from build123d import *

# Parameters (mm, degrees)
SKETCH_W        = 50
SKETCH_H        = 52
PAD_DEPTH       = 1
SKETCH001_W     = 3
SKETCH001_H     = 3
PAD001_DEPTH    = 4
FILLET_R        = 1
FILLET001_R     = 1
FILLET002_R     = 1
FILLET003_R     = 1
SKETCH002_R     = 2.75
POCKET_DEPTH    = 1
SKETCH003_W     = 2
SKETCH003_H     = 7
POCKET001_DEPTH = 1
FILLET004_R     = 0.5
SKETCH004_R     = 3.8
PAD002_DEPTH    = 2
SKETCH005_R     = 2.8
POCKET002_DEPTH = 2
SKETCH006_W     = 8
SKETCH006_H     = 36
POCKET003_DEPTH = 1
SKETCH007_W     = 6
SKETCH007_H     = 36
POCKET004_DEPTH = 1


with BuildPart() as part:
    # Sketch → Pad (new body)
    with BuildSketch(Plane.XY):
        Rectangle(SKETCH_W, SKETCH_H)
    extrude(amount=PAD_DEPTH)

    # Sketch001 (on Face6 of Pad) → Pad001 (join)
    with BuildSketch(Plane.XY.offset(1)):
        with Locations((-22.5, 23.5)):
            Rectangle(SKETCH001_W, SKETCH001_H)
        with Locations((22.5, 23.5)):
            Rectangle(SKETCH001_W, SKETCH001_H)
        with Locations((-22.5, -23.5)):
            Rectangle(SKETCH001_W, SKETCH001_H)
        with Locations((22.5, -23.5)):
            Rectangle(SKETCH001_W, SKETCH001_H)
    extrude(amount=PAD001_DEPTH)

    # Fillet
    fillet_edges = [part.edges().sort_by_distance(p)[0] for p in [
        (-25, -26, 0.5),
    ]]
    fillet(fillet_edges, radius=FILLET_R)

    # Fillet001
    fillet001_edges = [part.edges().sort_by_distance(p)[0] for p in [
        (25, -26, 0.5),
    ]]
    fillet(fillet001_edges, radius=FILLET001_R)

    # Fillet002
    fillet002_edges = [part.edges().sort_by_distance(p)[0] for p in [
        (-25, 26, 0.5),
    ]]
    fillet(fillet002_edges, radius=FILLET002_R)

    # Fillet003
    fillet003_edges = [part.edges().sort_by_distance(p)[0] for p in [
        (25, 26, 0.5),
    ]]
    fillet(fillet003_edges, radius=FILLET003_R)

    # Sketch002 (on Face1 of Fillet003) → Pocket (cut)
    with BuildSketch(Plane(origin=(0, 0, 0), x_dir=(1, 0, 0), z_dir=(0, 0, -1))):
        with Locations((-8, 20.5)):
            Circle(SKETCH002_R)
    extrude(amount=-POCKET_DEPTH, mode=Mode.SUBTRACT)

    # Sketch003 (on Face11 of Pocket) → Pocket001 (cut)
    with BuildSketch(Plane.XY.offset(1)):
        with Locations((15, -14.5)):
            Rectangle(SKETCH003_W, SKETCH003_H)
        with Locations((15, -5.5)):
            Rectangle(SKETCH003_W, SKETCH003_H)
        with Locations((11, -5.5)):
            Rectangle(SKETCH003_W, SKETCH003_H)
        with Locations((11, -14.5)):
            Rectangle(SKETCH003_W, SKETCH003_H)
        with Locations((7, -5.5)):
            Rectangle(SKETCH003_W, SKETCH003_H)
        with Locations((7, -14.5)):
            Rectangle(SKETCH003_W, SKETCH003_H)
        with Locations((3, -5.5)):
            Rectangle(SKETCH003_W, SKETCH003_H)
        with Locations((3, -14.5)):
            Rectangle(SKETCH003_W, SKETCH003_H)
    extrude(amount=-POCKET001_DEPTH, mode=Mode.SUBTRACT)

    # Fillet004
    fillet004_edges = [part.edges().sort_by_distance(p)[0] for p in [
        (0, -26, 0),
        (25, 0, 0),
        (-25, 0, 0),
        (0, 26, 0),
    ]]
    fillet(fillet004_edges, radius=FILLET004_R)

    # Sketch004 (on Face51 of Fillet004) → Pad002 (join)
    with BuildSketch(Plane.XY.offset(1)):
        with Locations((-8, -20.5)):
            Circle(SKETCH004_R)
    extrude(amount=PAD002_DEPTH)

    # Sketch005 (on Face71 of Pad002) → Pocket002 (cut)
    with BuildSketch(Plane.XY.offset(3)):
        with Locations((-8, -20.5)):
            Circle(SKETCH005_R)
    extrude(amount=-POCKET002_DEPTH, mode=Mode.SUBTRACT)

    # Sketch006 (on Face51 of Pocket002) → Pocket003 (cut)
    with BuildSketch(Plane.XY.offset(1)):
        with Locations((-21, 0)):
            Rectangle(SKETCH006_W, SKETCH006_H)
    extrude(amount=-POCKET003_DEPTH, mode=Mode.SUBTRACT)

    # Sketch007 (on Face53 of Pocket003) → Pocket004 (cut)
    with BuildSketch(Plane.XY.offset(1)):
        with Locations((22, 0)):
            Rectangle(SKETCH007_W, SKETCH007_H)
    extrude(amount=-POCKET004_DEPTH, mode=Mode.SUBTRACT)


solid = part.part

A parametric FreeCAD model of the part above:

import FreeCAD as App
import Part
import Sketcher

V = App.Vector


def edges_at(feature, points):
    """Names of the edges that pass closest to the given points."""
    edges = feature.Shape.Edges
    near = lambda p: min(range(len(edges)), key=lambda i: edges[i].distToShape(Part.Vertex(*p))[0])
    return sorted({f"Edge{near(p) + 1}" for p in points})

doc = App.newDocument("Part")
params = doc.addObject("Spreadsheet::Sheet", "Params")
for row, (alias, value) in enumerate([
    ("sketch1_width", "50 mm"),
    ("sketch1_height", "52 mm"),
    ("pad1_length", "1 mm"),
    ("sketch2_width", "3 mm"),
    ("pad2_length", "4 mm"),
    ("fillet_radius", "1 mm"),
    ("fillet2_radius", "1 mm"),
    ("fillet3_radius", "1 mm"),
    ("fillet4_radius", "1 mm"),
    ("sketch3_diameter", "5.5 mm"),
    ("pocket1_length", "1 mm"),
    ("sketch4_width", "2 mm"),
    ("sketch4_height", "7 mm"),
    ("pocket2_length", "1 mm"),
    ("fillet5_radius", "0.5 mm"),
    ("sketch5_diameter", "7.6 mm"),
    ("pad3_length", "2 mm"),
    ("sketch6_diameter", "5.6 mm"),
    ("pocket3_length", "2 mm"),
    ("sketch7_width", "8 mm"),
    ("sketch7_height", "36 mm"),
    ("pocket4_length", "1 mm"),
    ("sketch8_width", "6 mm"),
    ("sketch8_height", "36 mm"),
    ("pocket5_length", "1 mm"),
], start=1):
    params.set(f"A{row}", alias)
    params.set(f"B{row}", "=" + value)
    params.setAlias(f"B{row}", alias)

body = doc.addObject("PartDesign::Body", "Body")

sketch1 = body.newObject("Sketcher::SketchObject", "Sketch")
sketch1.AttachmentSupport = (doc.getObject("XY_Plane"), [""])
sketch1.MapMode = "FlatFace"
sketch1.addGeometry([
    Part.LineSegment(V(-25, 26, 0), V(-25, -26, 0)),
    Part.LineSegment(V(-25, -26, 0), V(25, -26, 0)),
    Part.LineSegment(V(25, -26, 0), V(25, 26, 0)),
    Part.LineSegment(V(25, 26, 0), V(-25, 26, 0)),
], False)
sketch1.addConstraint([
    Sketcher.Constraint("Coincident", 0, 2, 1, 1),
    Sketcher.Constraint("Coincident", 1, 2, 2, 1),
    Sketcher.Constraint("Coincident", 2, 2, 3, 1),
    Sketcher.Constraint("Coincident", 3, 2, 0, 1),
    Sketcher.Constraint("Vertical", 0),
    Sketcher.Constraint("Horizontal", 1),
    Sketcher.Constraint("Vertical", 2),
    Sketcher.Constraint("Horizontal", 3),
    Sketcher.Constraint("Symmetric", 0, 2, 2, 2, -1, 1),
    Sketcher.Constraint("DistanceX", 1, 1, 1, 2, 50.0),
    Sketcher.Constraint("DistanceY", 0, 2, 0, 1, 52.0),
])
sketch1.setExpression("Constraints[9]", "Params.sketch1_width")
sketch1.setExpression("Constraints[10]", "Params.sketch1_height")
pad1 = body.newObject("PartDesign::Pad", "Pad")
pad1.Profile = sketch1
pad1.setExpression("Length", "Params.pad1_length")

sketch2 = body.newObject("Sketcher::SketchObject", "Sketch001")
sketch2.AttachmentSupport = (doc.getObject("XY_Plane"), [""])
sketch2.MapMode = "FlatFace"
sketch2.AttachmentOffset = App.Placement(V(0, 0, 1), App.Rotation())
sketch2.addGeometry([
    Part.LineSegment(V(-24, 25, 0), V(-24, 22, 0)),
    Part.LineSegment(V(-24, 22, 0), V(-21, 22, 0)),
    Part.LineSegment(V(-21, 22, 0), V(-21, 25, 0)),
    Part.LineSegment(V(-21, 25, 0), V(-24, 25, 0)),
    Part.LineSegment(V(21, 25, 0), V(21, 22, 0)),
    Part.LineSegment(V(21, 22, 0), V(24, 22, 0)),
    Part.LineSegment(V(24, 22, 0), V(24, 25, 0)),
    Part.LineSegment(V(24, 25, 0), V(21, 25, 0)),
    Part.LineSegment(V(-24, -22, 0), V(-24, -25, 0)),
    Part.LineSegment(V(-24, -25, 0), V(-21, -25, 0)),
    Part.LineSegment(V(-21, -25, 0), V(-21, -22, 0)),
    Part.LineSegment(V(-21, -22, 0), V(-24, -22, 0)),
    Part.LineSegment(V(21, -22, 0), V(21, -25, 0)),
    Part.LineSegment(V(21, -25, 0), V(24, -25, 0)),
    Part.LineSegment(V(24, -25, 0), V(24, -22, 0)),
    Part.LineSegment(V(24, -22, 0), V(21, -22, 0)),
], False)
sketch2.addConstraint([
    Sketcher.Constraint("Coincident", 0, 2, 1, 1),
    Sketcher.Constraint("Coincident", 1, 2, 2, 1),
    Sketcher.Constraint("Coincident", 2, 2, 3, 1),
    Sketcher.Constraint("Coincident", 3, 2, 0, 1),
    Sketcher.Constraint("Coincident", 4, 2, 5, 1),
    Sketcher.Constraint("Coincident", 5, 2, 6, 1),
    Sketcher.Constraint("Coincident", 6, 2, 7, 1),
    Sketcher.Constraint("Coincident", 7, 2, 4, 1),
    Sketcher.Constraint("Coincident", 8, 2, 9, 1),
    Sketcher.Constraint("Coincident", 9, 2, 10, 1),
    Sketcher.Constraint("Coincident", 10, 2, 11, 1),
    Sketcher.Constraint("Coincident", 11, 2, 8, 1),
    Sketcher.Constraint("Coincident", 12, 2, 13, 1),
    Sketcher.Constraint("Coincident", 13, 2, 14, 1),
    Sketcher.Constraint("Coincident", 14, 2, 15, 1),
    Sketcher.Constraint("Coincident", 15, 2, 12, 1),
    Sketcher.Constraint("Vertical", 0),
    Sketcher.Constraint("Horizontal", 1),
    Sketcher.Constraint("Vertical", 2),
    Sketcher.Constraint("Horizontal", 3),
    Sketcher.Constraint("Vertical", 4),
    Sketcher.Constraint("Horizontal", 5),
    Sketcher.Constraint("Vertical", 6),
    Sketcher.Constraint("Horizontal", 7),
    Sketcher.Constraint("Vertical", 8),
    Sketcher.Constraint("Horizontal", 9),
    Sketcher.Constraint("Vertical", 10),
    Sketcher.Constraint("Horizontal", 11),
    Sketcher.Constraint("Vertical", 12),
    Sketcher.Constraint("Horizontal", 13),
    Sketcher.Constraint("Vertical", 14),
    Sketcher.Constraint("Horizontal", 15),
    Sketcher.Constraint("Symmetric", 6, 2, 8, 2, -1, 1),
    Sketcher.Constraint("Symmetric", 4, 2, 10, 2, -1, 1),
    Sketcher.Constraint("Symmetric", 2, 2, 12, 2, -1, 1),
    Sketcher.Constraint("Symmetric", 0, 2, 14, 2, -1, 1),
    Sketcher.Constraint("Symmetric", 1, 2, 4, 2, -2),
    Sketcher.Constraint("Symmetric", 3, 2, 6, 2, -2),
    Sketcher.Constraint("Equal", 15, 0),
    Sketcher.Constraint("DistanceX", 1, 1, 1, 2, 3.0),
    Sketcher.Constraint("DistanceX", 0, 2, -1, 1, 24.0),
    Sketcher.Constraint("DistanceY", -1, 1, 0, 2, 22.0),
])
sketch2.setExpression("Constraints[39]", "Params.sketch2_width")
pad2 = body.newObject("PartDesign::Pad", "Pad001")
pad2.Profile = sketch2
pad2.setExpression("Length", "Params.pad2_length")
doc.recompute()

fillet = body.newObject("PartDesign::Fillet", "Fillet")
fillet.Base = (pad2, edges_at(pad2, [(-25, -26, 0.5)]))
fillet.setExpression("Radius", "Params.fillet_radius")
doc.recompute()

fillet2 = body.newObject("PartDesign::Fillet", "Fillet001")
fillet2.Base = (fillet, edges_at(fillet, [(25, -26, 0.5)]))
fillet2.setExpression("Radius", "Params.fillet2_radius")
doc.recompute()

fillet3 = body.newObject("PartDesign::Fillet", "Fillet002")
fillet3.Base = (fillet2, edges_at(fillet2, [(-25, 26, 0.5)]))
fillet3.setExpression("Radius", "Params.fillet3_radius")
doc.recompute()

fillet4 = body.newObject("PartDesign::Fillet", "Fillet003")
fillet4.Base = (fillet3, edges_at(fillet3, [(25, 26, 0.5)]))
fillet4.setExpression("Radius", "Params.fillet4_radius")

sketch3 = body.newObject("Sketcher::SketchObject", "Sketch002")
sketch3.AttachmentSupport = (doc.getObject("XY_Plane"), [""])
sketch3.MapMode = "FlatFace"
sketch3.addGeometry(Part.Circle(V(-8, -20.5, 0), V(0, 0, 1), 2.75), False)
sketch3.addConstraint([
    Sketcher.Constraint("Diameter", 0, 5.5),
    Sketcher.Constraint("DistanceX", 0, 3, -1, 1, 8.0),
    Sketcher.Constraint("DistanceY", 0, 3, -1, 1, 20.5),
])
sketch3.setExpression("Constraints[0]", "Params.sketch3_diameter")
pocket1 = body.newObject("PartDesign::Pocket", "Pocket")
pocket1.Profile = sketch3
pocket1.setExpression("Length", "Params.pocket1_length")
pocket1.Reversed = True

sketch4 = body.newObject("Sketcher::SketchObject", "Sketch003")
sketch4.AttachmentSupport = (doc.getObject("XY_Plane"), [""])
sketch4.MapMode = "FlatFace"
sketch4.AttachmentOffset = App.Placement(V(0, 0, 1), App.Rotation())
sketch4.addGeometry([
    Part.LineSegment(V(14, -11, 0), V(14, -18, 0)),
    Part.LineSegment(V(14, -18, 0), V(16, -18, 0)),
    Part.LineSegment(V(16, -18, 0), V(16, -11, 0)),
    Part.LineSegment(V(16, -11, 0), V(14, -11, 0)),
    Part.LineSegment(V(14, -2, 0), V(14, -9, 0)),
    Part.LineSegment(V(14, -9, 0), V(16, -9, 0)),
    Part.LineSegment(V(16, -9, 0), V(16, -2, 0)),
    Part.LineSegment(V(16, -2, 0), V(14, -2, 0)),
    Part.LineSegment(V(10, -2, 0), V(10, -9, 0)),
    Part.LineSegment(V(10, -9, 0), V(12, -9, 0)),
    Part.LineSegment(V(12, -9, 0), V(12, -2, 0)),
    Part.LineSegment(V(12, -2, 0), V(10, -2, 0)),
    Part.LineSegment(V(10, -11, 0), V(10, -18, 0)),
    Part.LineSegment(V(10, -18, 0), V(12, -18, 0)),
    Part.LineSegment(V(12, -18, 0), V(12, -11, 0)),
    Part.LineSegment(V(12, -11, 0), V(10, -11, 0)),
    Part.LineSegment(V(6, -2, 0), V(6, -9, 0)),
    Part.LineSegment(V(6, -9, 0), V(8, -9, 0)),
    Part.LineSegment(V(8, -9, 0), V(8, -2, 0)),
    Part.LineSegment(V(8, -2, 0), V(6, -2, 0)),
    Part.LineSegment(V(6, -11, 0), V(6, -18, 0)),
    Part.LineSegment(V(6, -18, 0), V(8, -18, 0)),
    Part.LineSegment(V(8, -18, 0), V(8, -11, 0)),
    Part.LineSegment(V(8, -11, 0), V(6, -11, 0)),
    Part.LineSegment(V(2, -2, 0), V(2, -9, 0)),
    Part.LineSegment(V(2, -9, 0), V(4, -9, 0)),
    Part.LineSegment(V(4, -9, 0), V(4, -2, 0)),
    Part.LineSegment(V(4, -2, 0), V(2, -2, 0)),
    Part.LineSegment(V(2, -11, 0), V(2, -18, 0)),
    Part.LineSegment(V(2, -18, 0), V(4, -18, 0)),
    Part.LineSegment(V(4, -18, 0), V(4, -11, 0)),
    Part.LineSegment(V(4, -11, 0), V(2, -11, 0)),
], False)
sketch4.addConstraint([
    Sketcher.Constraint("Coincident", 0, 2, 1, 1),
    Sketcher.Constraint("Coincident", 1, 2, 2, 1),
    Sketcher.Constraint("Coincident", 2, 2, 3, 1),
    Sketcher.Constraint("Coincident", 3, 2, 0, 1),
    Sketcher.Constraint("Coincident", 4, 2, 5, 1),
    Sketcher.Constraint("Coincident", 5, 2, 6, 1),
    Sketcher.Constraint("Coincident", 6, 2, 7, 1),
    Sketcher.Constraint("Coincident", 7, 2, 4, 1),
    Sketcher.Constraint("Coincident", 8, 2, 9, 1),
    Sketcher.Constraint("Coincident", 9, 2, 10, 1),
    Sketcher.Constraint("Coincident", 10, 2, 11, 1),
    Sketcher.Constraint("Coincident", 11, 2, 8, 1),
    Sketcher.Constraint("Coincident", 12, 2, 13, 1),
    Sketcher.Constraint("Coincident", 13, 2, 14, 1),
    Sketcher.Constraint("Coincident", 14, 2, 15, 1),
    Sketcher.Constraint("Coincident", 15, 2, 12, 1),
    Sketcher.Constraint("Coincident", 16, 2, 17, 1),
    Sketcher.Constraint("Coincident", 17, 2, 18, 1),
    Sketcher.Constraint("Coincident", 18, 2, 19, 1),
    Sketcher.Constraint("Coincident", 19, 2, 16, 1),
    Sketcher.Constraint("Coincident", 20, 2, 21, 1),
    Sketcher.Constraint("Coincident", 21, 2, 22, 1),
    Sketcher.Constraint("Coincident", 22, 2, 23, 1),
    Sketcher.Constraint("Coincident", 23, 2, 20, 1),
    Sketcher.Constraint("Coincident", 24, 2, 25, 1),
    Sketcher.Constraint("Coincident", 25, 2, 26, 1),
    Sketcher.Constraint("Coincident", 26, 2, 27, 1),
    Sketcher.Constraint("Coincident", 27, 2, 24, 1),
    Sketcher.Constraint("Coincident", 28, 2, 29, 1),
    Sketcher.Constraint("Coincident", 29, 2, 30, 1),
    Sketcher.Constraint("Coincident", 30, 2, 31, 1),
    Sketcher.Constraint("Coincident", 31, 2, 28, 1),
    Sketcher.Constraint("Vertical", 0),
    Sketcher.Constraint("Horizontal", 1),
    Sketcher.Constraint("Vertical", 2),
    Sketcher.Constraint("Horizontal", 3),
    Sketcher.Constraint("Vertical", 4),
    Sketcher.Constraint("Horizontal", 5),
    Sketcher.Constraint("Vertical", 6),
    Sketcher.Constraint("Horizontal", 7),
    Sketcher.Constraint("Vertical", 8),
    Sketcher.Constraint("Horizontal", 9),
    Sketcher.Constraint("Vertical", 10),
    Sketcher.Constraint("Horizontal", 11),
    Sketcher.Constraint("Vertical", 12),
    Sketcher.Constraint("Horizontal", 13),
    Sketcher.Constraint("Vertical", 14),
    Sketcher.Constraint("Horizontal", 15),
    Sketcher.Constraint("Vertical", 16),
    Sketcher.Constraint("Horizontal", 17),
    Sketcher.Constraint("Vertical", 18),
    Sketcher.Constraint("Horizontal", 19),
    Sketcher.Constraint("Vertical", 20),
    Sketcher.Constraint("Horizontal", 21),
    Sketcher.Constraint("Vertical", 22),
    Sketcher.Constraint("Horizontal", 23),
    Sketcher.Constraint("Vertical", 24),
    Sketcher.Constraint("Horizontal", 25),
    Sketcher.Constraint("Vertical", 26),
    Sketcher.Constraint("Horizontal", 27),
    Sketcher.Constraint("Vertical", 28),
    Sketcher.Constraint("Horizontal", 29),
    Sketcher.Constraint("Vertical", 30),
    Sketcher.Constraint("Horizontal", 31),
    Sketcher.Constraint("Horizontal", 5, 2, 8, 2),
    Sketcher.Constraint("Horizontal", 7, 2, 10, 2),
    Sketcher.Constraint("Horizontal", 1, 2, 12, 2),
    Sketcher.Constraint("Horizontal", 3, 2, 14, 2),
    Sketcher.Constraint("Horizontal", 9, 2, 16, 2),
    Sketcher.Constraint("Horizontal", 11, 2, 18, 2),
    Sketcher.Constraint("Horizontal", 13, 2, 20, 2),
    Sketcher.Constraint("Horizontal", 15, 2, 22, 2),
    Sketcher.Constraint("Horizontal", 17, 2, 24, 2),
    Sketcher.Constraint("Horizontal", 19, 2, 26, 2),
    Sketcher.Constraint("Horizontal", 21, 2, 28, 2),
    Sketcher.Constraint("Horizontal", 23, 2, 30, 2),
    Sketcher.Constraint("Vertical", 3, 2, 4, 2),
    Sketcher.Constraint("Vertical", 2, 2, 5, 2),
    Sketcher.Constraint("Vertical", 11, 2, 12, 2),
    Sketcher.Constraint("Vertical", 10, 2, 13, 2),
    Sketcher.Constraint("Vertical", 19, 2, 20, 2),
    Sketcher.Constraint("Vertical", 18, 2, 21, 2),
    Sketcher.Constraint("Vertical", 27, 2, 28, 2),
    Sketcher.Constraint("Vertical", 26, 2, 29, 2),
    Sketcher.Constraint("Equal", 7, 9),
    Sketcher.Constraint("Equal", 15, 17),
    Sketcher.Constraint("Equal", 23, 25),
    Sketcher.Constraint("Equal", 2, 4),
    Sketcher.Constraint("DistanceX", 1, 1, 1, 2, 2.0),
    Sketcher.Constraint("DistanceY", 0, 2, 0, 1, 7.0),
    Sketcher.Constraint("DistanceX", -1, 1, 0, 2, 14.0),
    Sketcher.Constraint("DistanceY", 0, 2, -1, 1, 18.0),
    Sketcher.Constraint("DistanceY", 4, 2, -1, 1, 9.0),
    Sketcher.Constraint("DistanceX", -1, 1, 8, 2, 10.0),
    Sketcher.Constraint("DistanceX", -1, 1, 16, 2, 6.0),
    Sketcher.Constraint("DistanceX", -1, 1, 24, 2, 2.0),
])
sketch4.setExpression("Constraints[88]", "Params.sketch4_width")
sketch4.setExpression("Constraints[89]", "Params.sketch4_height")
pocket2 = body.newObject("PartDesign::Pocket", "Pocket001")
pocket2.Profile = sketch4
pocket2.setExpression("Length", "Params.pocket2_length")
doc.recompute()

fillet5 = body.newObject("PartDesign::Fillet", "Fillet004")
fillet5.Base = (pocket2, edges_at(pocket2, [
    (0, -26, 0),
    (25, 0, 0),
    (-25, 0, 0),
    (0, 26, 0),
]))
fillet5.setExpression("Radius", "Params.fillet5_radius")

sketch5 = body.newObject("Sketcher::SketchObject", "Sketch004")
sketch5.AttachmentSupport = (doc.getObject("XY_Plane"), [""])
sketch5.MapMode = "FlatFace"
sketch5.AttachmentOffset = App.Placement(V(0, 0, 1), App.Rotation())
sketch5.addGeometry(Part.Circle(V(-8, -20.5, 0), V(0, 0, 1), 3.8), False)
sketch5.addConstraint([
    Sketcher.Constraint("Diameter", 0, 7.6),
    Sketcher.Constraint("DistanceX", 0, 3, -1, 1, 8.0),
    Sketcher.Constraint("DistanceY", 0, 3, -1, 1, 20.5),
])
sketch5.setExpression("Constraints[0]", "Params.sketch5_diameter")
pad3 = body.newObject("PartDesign::Pad", "Pad002")
pad3.Profile = sketch5
pad3.setExpression("Length", "Params.pad3_length")

sketch6 = body.newObject("Sketcher::SketchObject", "Sketch005")
sketch6.AttachmentSupport = (doc.getObject("XY_Plane"), [""])
sketch6.MapMode = "FlatFace"
sketch6.AttachmentOffset = App.Placement(V(0, 0, 3), App.Rotation())
sketch6.addGeometry(Part.Circle(V(-8, -20.5, 0), V(0, 0, 1), 2.8), False)
sketch6.addConstraint([
    Sketcher.Constraint("Diameter", 0, 5.6),
    Sketcher.Constraint("DistanceX", 0, 3, -1, 1, 8.0),
    Sketcher.Constraint("DistanceY", 0, 3, -1, 1, 20.5),
])
sketch6.setExpression("Constraints[0]", "Params.sketch6_diameter")
pocket3 = body.newObject("PartDesign::Pocket", "Pocket002")
pocket3.Profile = sketch6
pocket3.setExpression("Length", "Params.pocket3_length")

sketch7 = body.newObject("Sketcher::SketchObject", "Sketch006")
sketch7.AttachmentSupport = (doc.getObject("XY_Plane"), [""])
sketch7.MapMode = "FlatFace"
sketch7.AttachmentOffset = App.Placement(V(0, 0, 1), App.Rotation())
sketch7.addGeometry([
    Part.LineSegment(V(-25, 18, 0), V(-25, -18, 0)),
    Part.LineSegment(V(-25, -18, 0), V(-17, -18, 0)),
    Part.LineSegment(V(-17, -18, 0), V(-17, 18, 0)),
    Part.LineSegment(V(-17, 18, 0), V(-25, 18, 0)),
], False)
sketch7.addConstraint([
    Sketcher.Constraint("Coincident", 0, 2, 1, 1),
    Sketcher.Constraint("Coincident", 1, 2, 2, 1),
    Sketcher.Constraint("Coincident", 2, 2, 3, 1),
    Sketcher.Constraint("Coincident", 3, 2, 0, 1),
    Sketcher.Constraint("Vertical", 0),
    Sketcher.Constraint("Horizontal", 1),
    Sketcher.Constraint("Vertical", 2),
    Sketcher.Constraint("Horizontal", 3),
    Sketcher.Constraint("DistanceX", 1, 1, 1, 2, 8.0),
    Sketcher.Constraint("DistanceY", 0, 2, 0, 1, 36.0),
    Sketcher.Constraint("DistanceX", 0, 2, -1, 1, 25.0),
    Sketcher.Constraint("DistanceY", 0, 2, -1, 1, 18.0),
])
sketch7.setExpression("Constraints[8]", "Params.sketch7_width")
sketch7.setExpression("Constraints[9]", "Params.sketch7_height")
pocket4 = body.newObject("PartDesign::Pocket", "Pocket003")
pocket4.Profile = sketch7
pocket4.setExpression("Length", "Params.pocket4_length")

sketch8 = body.newObject("Sketcher::SketchObject", "Sketch007")
sketch8.AttachmentSupport = (doc.getObject("XY_Plane"), [""])
sketch8.MapMode = "FlatFace"
sketch8.AttachmentOffset = App.Placement(V(0, 0, 1), App.Rotation())
sketch8.addGeometry([
    Part.LineSegment(V(19, 18, 0), V(19, -18, 0)),
    Part.LineSegment(V(19, -18, 0), V(25, -18, 0)),
    Part.LineSegment(V(25, -18, 0), V(25, 18, 0)),
    Part.LineSegment(V(25, 18, 0), V(19, 18, 0)),
], False)
sketch8.addConstraint([
    Sketcher.Constraint("Coincident", 0, 2, 1, 1),
    Sketcher.Constraint("Coincident", 1, 2, 2, 1),
    Sketcher.Constraint("Coincident", 2, 2, 3, 1),
    Sketcher.Constraint("Coincident", 3, 2, 0, 1),
    Sketcher.Constraint("Vertical", 0),
    Sketcher.Constraint("Horizontal", 1),
    Sketcher.Constraint("Vertical", 2),
    Sketcher.Constraint("Horizontal", 3),
    Sketcher.Constraint("DistanceX", 1, 1, 1, 2, 6.0),
    Sketcher.Constraint("DistanceY", 0, 2, 0, 1, 36.0),
    Sketcher.Constraint("DistanceX", -1, 1, 0, 2, 19.0),
    Sketcher.Constraint("DistanceY", 0, 2, -1, 1, 18.0),
])
sketch8.setExpression("Constraints[8]", "Params.sketch8_width")
sketch8.setExpression("Constraints[9]", "Params.sketch8_height")
pocket5 = body.newObject("PartDesign::Pocket", "Pocket004")
pocket5.Profile = sketch8
pocket5.setExpression("Length", "Params.pocket5_length")

doc.recompute()
